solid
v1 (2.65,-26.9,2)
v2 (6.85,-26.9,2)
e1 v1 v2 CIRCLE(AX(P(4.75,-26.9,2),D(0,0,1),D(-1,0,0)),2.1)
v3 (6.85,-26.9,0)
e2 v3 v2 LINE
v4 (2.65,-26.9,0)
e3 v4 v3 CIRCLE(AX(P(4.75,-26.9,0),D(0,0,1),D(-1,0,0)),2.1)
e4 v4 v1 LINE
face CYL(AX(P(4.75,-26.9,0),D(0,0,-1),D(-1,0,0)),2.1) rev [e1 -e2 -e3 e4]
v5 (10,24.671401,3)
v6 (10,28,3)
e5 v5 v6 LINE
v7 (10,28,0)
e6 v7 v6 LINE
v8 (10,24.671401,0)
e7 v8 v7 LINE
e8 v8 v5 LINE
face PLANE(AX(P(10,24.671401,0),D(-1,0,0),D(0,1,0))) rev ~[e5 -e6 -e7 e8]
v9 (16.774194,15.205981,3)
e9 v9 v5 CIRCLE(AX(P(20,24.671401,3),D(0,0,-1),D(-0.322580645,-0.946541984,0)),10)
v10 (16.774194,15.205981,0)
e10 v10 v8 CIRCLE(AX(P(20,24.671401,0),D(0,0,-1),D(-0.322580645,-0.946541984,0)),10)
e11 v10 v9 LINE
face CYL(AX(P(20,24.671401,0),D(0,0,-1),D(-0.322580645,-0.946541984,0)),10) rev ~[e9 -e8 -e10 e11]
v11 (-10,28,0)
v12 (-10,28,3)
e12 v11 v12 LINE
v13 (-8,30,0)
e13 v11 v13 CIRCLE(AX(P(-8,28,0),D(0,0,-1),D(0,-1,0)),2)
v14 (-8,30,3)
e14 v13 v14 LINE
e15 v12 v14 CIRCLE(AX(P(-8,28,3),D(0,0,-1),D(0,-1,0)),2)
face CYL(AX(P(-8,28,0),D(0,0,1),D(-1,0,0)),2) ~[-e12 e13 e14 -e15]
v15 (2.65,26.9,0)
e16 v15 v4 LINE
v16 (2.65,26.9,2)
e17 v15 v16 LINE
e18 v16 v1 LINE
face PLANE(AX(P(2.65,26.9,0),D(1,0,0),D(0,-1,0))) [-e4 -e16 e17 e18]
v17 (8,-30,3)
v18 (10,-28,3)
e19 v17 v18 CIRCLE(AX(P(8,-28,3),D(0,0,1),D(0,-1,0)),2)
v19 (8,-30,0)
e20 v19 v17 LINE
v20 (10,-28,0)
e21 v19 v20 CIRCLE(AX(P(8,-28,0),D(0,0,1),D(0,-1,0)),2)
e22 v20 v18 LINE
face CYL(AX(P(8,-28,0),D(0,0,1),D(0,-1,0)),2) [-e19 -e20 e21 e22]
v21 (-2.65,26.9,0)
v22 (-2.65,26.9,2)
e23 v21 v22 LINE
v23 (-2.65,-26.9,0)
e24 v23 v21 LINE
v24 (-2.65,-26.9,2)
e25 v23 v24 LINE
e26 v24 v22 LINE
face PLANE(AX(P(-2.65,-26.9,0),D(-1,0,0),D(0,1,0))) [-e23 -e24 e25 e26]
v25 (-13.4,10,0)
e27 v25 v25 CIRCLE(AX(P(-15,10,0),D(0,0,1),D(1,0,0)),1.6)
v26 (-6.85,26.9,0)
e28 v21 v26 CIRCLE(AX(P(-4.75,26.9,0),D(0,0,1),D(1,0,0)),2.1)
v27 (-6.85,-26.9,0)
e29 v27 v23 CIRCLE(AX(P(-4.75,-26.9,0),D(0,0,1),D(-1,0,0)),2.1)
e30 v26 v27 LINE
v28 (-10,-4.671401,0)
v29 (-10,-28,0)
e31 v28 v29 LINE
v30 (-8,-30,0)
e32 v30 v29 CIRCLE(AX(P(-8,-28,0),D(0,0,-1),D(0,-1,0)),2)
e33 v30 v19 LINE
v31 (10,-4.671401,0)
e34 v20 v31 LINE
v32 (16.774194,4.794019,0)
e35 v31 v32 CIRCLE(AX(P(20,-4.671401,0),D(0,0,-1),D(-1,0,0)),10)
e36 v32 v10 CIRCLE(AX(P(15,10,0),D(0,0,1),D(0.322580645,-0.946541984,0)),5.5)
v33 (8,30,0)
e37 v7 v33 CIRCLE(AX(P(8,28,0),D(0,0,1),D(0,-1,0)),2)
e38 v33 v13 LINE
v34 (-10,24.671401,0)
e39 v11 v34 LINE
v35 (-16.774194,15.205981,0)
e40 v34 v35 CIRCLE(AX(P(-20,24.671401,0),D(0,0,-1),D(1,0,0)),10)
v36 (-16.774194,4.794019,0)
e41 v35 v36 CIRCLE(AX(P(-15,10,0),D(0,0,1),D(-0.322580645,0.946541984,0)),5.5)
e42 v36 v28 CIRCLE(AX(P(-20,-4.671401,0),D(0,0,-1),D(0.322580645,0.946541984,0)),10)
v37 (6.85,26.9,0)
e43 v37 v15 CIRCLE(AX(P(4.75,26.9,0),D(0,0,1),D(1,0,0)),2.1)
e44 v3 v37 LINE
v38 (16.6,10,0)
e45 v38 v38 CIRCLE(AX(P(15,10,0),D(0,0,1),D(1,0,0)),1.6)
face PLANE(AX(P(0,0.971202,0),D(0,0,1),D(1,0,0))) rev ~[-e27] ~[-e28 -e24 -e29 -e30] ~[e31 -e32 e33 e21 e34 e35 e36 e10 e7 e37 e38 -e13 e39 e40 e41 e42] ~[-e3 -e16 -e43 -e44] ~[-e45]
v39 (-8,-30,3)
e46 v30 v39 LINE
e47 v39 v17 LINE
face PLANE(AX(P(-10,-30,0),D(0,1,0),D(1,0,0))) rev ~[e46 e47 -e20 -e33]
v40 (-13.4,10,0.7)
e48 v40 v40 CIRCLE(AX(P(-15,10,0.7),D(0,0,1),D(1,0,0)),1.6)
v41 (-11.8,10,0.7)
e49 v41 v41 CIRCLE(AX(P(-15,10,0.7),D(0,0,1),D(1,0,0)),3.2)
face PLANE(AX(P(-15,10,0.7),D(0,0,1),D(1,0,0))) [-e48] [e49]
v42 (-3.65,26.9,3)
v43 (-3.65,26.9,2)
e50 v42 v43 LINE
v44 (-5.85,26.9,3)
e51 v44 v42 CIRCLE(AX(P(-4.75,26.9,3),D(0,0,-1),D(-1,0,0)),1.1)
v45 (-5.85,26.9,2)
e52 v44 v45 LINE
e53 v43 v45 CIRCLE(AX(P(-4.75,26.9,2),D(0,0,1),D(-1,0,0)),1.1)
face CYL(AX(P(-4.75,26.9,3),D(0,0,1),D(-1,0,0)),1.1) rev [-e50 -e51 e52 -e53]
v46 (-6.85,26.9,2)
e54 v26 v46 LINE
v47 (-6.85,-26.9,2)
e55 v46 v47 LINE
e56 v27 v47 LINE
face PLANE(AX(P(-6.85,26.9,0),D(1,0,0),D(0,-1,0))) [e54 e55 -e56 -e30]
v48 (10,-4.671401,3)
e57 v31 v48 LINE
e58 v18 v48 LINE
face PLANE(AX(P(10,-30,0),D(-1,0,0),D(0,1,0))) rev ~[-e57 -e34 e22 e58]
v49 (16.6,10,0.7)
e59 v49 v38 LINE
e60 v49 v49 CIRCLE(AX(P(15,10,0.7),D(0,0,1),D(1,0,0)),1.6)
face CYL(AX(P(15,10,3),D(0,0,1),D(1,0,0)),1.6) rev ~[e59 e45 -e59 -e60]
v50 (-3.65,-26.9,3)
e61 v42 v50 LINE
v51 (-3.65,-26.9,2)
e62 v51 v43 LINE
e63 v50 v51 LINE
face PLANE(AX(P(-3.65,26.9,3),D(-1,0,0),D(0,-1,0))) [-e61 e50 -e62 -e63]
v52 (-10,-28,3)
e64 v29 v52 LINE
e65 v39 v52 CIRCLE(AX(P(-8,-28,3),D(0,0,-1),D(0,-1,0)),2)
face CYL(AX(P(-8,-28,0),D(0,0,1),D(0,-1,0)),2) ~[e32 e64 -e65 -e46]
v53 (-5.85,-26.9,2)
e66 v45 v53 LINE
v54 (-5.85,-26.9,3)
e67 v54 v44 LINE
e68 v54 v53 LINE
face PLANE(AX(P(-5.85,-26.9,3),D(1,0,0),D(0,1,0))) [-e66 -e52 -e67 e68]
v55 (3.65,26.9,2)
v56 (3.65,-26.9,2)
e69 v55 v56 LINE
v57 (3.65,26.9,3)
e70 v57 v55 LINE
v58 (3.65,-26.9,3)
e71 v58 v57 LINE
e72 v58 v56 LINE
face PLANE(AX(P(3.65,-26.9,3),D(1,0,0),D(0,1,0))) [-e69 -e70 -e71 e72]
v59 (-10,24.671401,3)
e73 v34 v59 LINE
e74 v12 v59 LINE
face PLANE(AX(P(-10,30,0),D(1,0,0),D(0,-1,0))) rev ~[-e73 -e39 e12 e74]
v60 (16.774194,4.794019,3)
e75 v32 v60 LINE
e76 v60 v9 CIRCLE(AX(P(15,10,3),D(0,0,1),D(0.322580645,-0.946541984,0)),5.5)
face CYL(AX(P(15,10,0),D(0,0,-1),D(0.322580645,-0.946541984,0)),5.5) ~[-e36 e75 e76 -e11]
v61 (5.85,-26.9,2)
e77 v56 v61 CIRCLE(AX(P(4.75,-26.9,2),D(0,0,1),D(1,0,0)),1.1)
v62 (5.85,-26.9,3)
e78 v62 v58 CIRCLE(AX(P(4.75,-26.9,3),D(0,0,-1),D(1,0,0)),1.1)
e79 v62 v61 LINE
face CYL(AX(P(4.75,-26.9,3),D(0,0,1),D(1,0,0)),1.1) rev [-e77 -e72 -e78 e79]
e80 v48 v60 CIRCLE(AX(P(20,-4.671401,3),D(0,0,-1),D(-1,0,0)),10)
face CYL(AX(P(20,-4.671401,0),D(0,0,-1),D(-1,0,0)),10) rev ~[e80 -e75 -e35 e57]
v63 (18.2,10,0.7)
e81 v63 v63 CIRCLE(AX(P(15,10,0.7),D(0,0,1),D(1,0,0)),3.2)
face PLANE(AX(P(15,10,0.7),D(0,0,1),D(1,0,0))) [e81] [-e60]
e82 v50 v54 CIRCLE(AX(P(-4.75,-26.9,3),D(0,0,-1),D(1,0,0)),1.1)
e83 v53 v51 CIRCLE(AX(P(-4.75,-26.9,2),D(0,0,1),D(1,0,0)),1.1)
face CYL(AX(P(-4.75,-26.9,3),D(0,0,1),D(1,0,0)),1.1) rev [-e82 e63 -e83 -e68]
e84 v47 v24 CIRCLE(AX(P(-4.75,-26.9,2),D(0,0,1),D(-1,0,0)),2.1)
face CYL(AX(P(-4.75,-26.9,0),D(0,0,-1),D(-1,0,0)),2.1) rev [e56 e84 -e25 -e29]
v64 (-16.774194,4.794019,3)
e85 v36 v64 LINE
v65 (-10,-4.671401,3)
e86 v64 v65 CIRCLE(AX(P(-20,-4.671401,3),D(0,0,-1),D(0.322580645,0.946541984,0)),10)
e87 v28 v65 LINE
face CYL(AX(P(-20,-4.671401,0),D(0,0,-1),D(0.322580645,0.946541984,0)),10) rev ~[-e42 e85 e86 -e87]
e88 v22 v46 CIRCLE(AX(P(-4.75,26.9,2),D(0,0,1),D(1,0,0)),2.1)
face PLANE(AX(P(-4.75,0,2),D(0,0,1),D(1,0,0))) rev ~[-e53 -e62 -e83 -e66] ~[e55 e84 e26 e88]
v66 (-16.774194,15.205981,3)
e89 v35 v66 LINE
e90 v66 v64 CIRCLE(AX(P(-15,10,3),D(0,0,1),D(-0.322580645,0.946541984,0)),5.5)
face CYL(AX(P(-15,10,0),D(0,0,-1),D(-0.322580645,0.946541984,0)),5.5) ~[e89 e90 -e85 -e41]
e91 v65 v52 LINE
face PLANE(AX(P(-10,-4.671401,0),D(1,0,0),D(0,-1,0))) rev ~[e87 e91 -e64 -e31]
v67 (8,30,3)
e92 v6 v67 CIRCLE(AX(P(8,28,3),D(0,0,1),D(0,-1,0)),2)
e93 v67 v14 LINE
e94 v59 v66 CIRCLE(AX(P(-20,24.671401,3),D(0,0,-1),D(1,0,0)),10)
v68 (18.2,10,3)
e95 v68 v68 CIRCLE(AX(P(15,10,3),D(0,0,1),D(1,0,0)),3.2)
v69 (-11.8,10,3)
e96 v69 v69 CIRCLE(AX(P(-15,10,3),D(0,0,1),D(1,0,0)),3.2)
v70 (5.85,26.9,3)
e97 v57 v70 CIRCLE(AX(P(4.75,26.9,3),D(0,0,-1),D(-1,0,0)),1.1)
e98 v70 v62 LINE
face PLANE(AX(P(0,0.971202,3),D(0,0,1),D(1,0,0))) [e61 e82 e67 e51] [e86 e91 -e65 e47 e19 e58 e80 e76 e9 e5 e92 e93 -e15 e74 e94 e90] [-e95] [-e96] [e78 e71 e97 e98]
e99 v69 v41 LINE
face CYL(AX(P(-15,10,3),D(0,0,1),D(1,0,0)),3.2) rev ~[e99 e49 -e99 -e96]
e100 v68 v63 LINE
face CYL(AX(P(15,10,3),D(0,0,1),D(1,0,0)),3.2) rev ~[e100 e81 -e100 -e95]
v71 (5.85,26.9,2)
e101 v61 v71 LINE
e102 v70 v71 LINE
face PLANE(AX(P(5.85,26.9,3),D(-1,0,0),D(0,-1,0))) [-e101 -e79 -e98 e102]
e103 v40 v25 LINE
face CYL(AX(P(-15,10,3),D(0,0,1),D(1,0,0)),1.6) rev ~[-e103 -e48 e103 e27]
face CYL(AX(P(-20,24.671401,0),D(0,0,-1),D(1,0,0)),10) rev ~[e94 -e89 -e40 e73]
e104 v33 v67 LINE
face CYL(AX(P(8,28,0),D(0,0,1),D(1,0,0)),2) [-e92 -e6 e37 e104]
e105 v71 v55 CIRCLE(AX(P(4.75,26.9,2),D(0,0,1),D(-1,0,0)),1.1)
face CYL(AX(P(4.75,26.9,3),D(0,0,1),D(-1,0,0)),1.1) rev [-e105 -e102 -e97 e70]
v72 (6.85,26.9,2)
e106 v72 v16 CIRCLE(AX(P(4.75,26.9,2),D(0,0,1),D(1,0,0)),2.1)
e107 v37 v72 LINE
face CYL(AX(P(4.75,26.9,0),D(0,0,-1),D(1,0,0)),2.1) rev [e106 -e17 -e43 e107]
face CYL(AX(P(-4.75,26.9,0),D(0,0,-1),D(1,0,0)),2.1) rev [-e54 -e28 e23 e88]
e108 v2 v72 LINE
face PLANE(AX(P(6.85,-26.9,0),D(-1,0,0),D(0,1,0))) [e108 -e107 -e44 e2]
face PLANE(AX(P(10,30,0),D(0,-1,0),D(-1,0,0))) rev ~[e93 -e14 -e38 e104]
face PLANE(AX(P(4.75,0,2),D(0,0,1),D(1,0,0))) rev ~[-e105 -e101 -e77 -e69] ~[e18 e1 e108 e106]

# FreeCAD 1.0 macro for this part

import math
import FreeCAD as App
import Part
import Sketcher

V = App.Vector


def edges_at(feature, points):
    """Names of the edges that pass closest to the given points."""
    edges = feature.Shape.Edges
    near = lambda p: min(range(len(edges)), key=lambda i: edges[i].distToShape(Part.Vertex(*p))[0])
    return sorted({f"Edge{near(p) + 1}" for p in points})

doc = App.newDocument("Part")
params = doc.addObject("Spreadsheet::Sheet", "Params")
for row, (alias, value) in enumerate([
    ("sketch1_radius", "10 mm"),
    ("sketch1_radius2", "5.5 mm"),
    ("sketch1_width", "20 mm"),
    ("pad1_length", "3 mm"),
    ("sketch2_diameter", "3.2 mm"),
    ("sketch2_radius", "1.1 mm"),
    ("sketch2_height", "53.8 mm"),
    ("sketch3_diameter", "6.4 mm"),
    ("pocket2_length", "2.3 mm"),
    ("sketch4_radius", "2.1 mm"),
    ("sketch4_height", "53.8 mm"),
    ("pocket3_length", "2 mm"),
    ("fillet_radius", "2 mm"),
], start=1):
    params.set(f"A{row}", alias)
    params.set(f"B{row}", "=" + value)
    params.setAlias(f"B{row}", alias)

body = doc.addObject("PartDesign::Body", "Body")

# Sketch on XY plane
sketch1 = doc.addObject("Sketcher::SketchObject", "Sketch")
body.addObject(sketch1)
sketch1.AttachmentSupport = (doc.XY_Plane, [""])
sketch1.MapMode = "FlatFace"
sketch1.addGeometry([
    Part.LineSegment(V(-10, -30, 0), V(10, -30, 0)),  # 0
    Part.LineSegment(V(10, -30, 0), V(10, -5, 0)),  # 1
    Part.ArcOfCircle(Part.Circle(V(20, -5, 0), V(0, 0, 1), 10), math.radians(109), math.radians(180)),  # 2
    Part.ArcOfCircle(Part.Circle(V(15, 10, 0), V(0, 0, 1), 6), math.radians(-71), math.radians(71)),  # 3
    Part.ArcOfCircle(Part.Circle(V(20, 25, 0), V(0, 0, 1), 10), math.radians(180), math.radians(251)),  # 4
    Part.LineSegment(V(10, 25, 0), V(10, 30, 0)),  # 5
    Part.LineSegment(V(10, 30, 0), V(-10, 30, 0)),  # 6
    Part.LineSegment(V(-10, 30, 0), V(-10, 25, 0)),  # 7
    Part.ArcOfCircle(Part.Circle(V(-20, 25, 0), V(0, 0, 1), 10), math.radians(-71), math.radians(0)),  # 8
    Part.ArcOfCircle(Part.Circle(V(-15, 10, 0), V(0, 0, 1), 6), math.radians(109), math.radians(251)),  # 9
    Part.ArcOfCircle(Part.Circle(V(-20, -5, 0), V(0, 0, 1), 10), math.radians(0), math.radians(71)),  # 10
    Part.LineSegment(V(-10, -5, 0), V(-10, -30, 0)),  # 11
], False)
sketch1.addConstraint([
    Sketcher.Constraint("Coincident", 0, 2, 1, 1),
    Sketcher.Constraint("Tangent", 1, 2, 2, 2),
    Sketcher.Constraint("Tangent", 2, 1, 3, 1),
    Sketcher.Constraint("Tangent", 3, 2, 4, 2),
    Sketcher.Constraint("Tangent", 4, 1, 5, 1),
    Sketcher.Constraint("Coincident", 5, 2, 6, 1),
    Sketcher.Constraint("Coincident", 6, 2, 7, 1),
    Sketcher.Constraint("Tangent", 7, 2, 8, 2),
    Sketcher.Constraint("Tangent", 8, 1, 9, 1),
    Sketcher.Constraint("Tangent", 9, 2, 10, 2),
    Sketcher.Constraint("Tangent", 10, 1, 11, 1),
    Sketcher.Constraint("Coincident", 11, 2, 0, 1),
    Sketcher.Constraint("Horizontal", 0),
    Sketcher.Constraint("Vertical", 1),
    Sketcher.Constraint("Vertical", 5),
    Sketcher.Constraint("Horizontal", 6),
    Sketcher.Constraint("Vertical", 7),
    Sketcher.Constraint("Vertical", 11),
    Sketcher.Constraint("Equal", 2, 4),
    Sketcher.Constraint("Equal", 4, 8),
    Sketcher.Constraint("Equal", 3, 9),
    Sketcher.Constraint("Equal", 8, 10),
    Sketcher.Constraint("Symmetric", 0, 2, 6, 2, -1, 1),
    Sketcher.Constraint("Symmetric", 4, 3, 8, 3, -2),
    Sketcher.Constraint("Symmetric", 2, 3, 10, 3, -2),
    Sketcher.Constraint("Radius", 2, 10.0),
    Sketcher.Constraint("Radius", 3, 5.5),
    Sketcher.Constraint("DistanceX", 0, 1, 0, 2, 20.0),
    Sketcher.Constraint("DistanceX", -1, 1, 3, 3, 15.0),
    Sketcher.Constraint("DistanceY", -1, 1, 3, 3, 10.0),
    Sketcher.Constraint("DistanceY", 0, 2, -1, 1, 30.0),
])
sketch1.setExpression("Constraints[25]", "Params.sketch1_radius")
sketch1.setExpression("Constraints[26]", "Params.sketch1_radius2")
sketch1.setExpression("Constraints[27]", "Params.sketch1_width")
pad1 = doc.addObject("PartDesign::Pad", "Pad")
body.addObject(pad1)
pad1.Profile = sketch1
pad1.setExpression("Length", "Params.pad1_length")

# Sketch on XY plane
sketch2 = doc.addObject("Sketcher::SketchObject", "Sketch001")
body.addObject(sketch2)
sketch2.AttachmentSupport = (doc.XY_Plane, [""])
sketch2.MapMode = "FlatFace"
sketch2.AttachmentOffset = App.Placement(V(0, 0, 3), App.Rotation())
sketch2.addGeometry([
    Part.Circle(V(-15, 10, 0), V(0, 0, 1), 1.6),  # 0
    Part.Circle(V(15, 10, 0), V(0, 0, 1), 1.6),  # 1
    Part.LineSegment(V(-3.6, -26.9, 0), V(-3.6, 26.9, 0)),  # 2
    Part.ArcOfCircle(Part.Circle(V(-4.8, 26.9, 0), V(0, 0, 1), 1.1), math.radians(0), math.radians(180)),  # 3
    Part.LineSegment(V(-5.8, 26.9, 0), V(-5.8, -26.9, 0)),  # 4
    Part.ArcOfCircle(Part.Circle(V(-4.8, -26.9, 0), V(0, 0, 1), 1.1), math.radians(180), math.radians(360)),  # 5
    Part.LineSegment(V(5.8, -26.9, 0), V(5.8, 26.9, 0)),  # 6
    Part.ArcOfCircle(Part.Circle(V(4.8, 26.9, 0), V(0, 0, 1), 1.1), math.radians(0), math.radians(180)),  # 7
    Part.LineSegment(V(3.6, 26.9, 0), V(3.6, -26.9, 0)),  # 8
    Part.ArcOfCircle(Part.Circle(V(4.8, -26.9, 0), V(0, 0, 1), 1.1), math.radians(180), math.radians(360)),  # 9
], False)
sketch2.addConstraint([
    Sketcher.Constraint("Tangent", 2, 2, 3, 1),
    Sketcher.Constraint("Tangent", 3, 2, 4, 1),
    Sketcher.Constraint("Tangent", 4, 2, 5, 1),
    Sketcher.Constraint("Tangent", 5, 2, 2, 1),
    Sketcher.Constraint("Tangent", 6, 2, 7, 1),
    Sketcher.Constraint("Tangent", 7, 2, 8, 1),
    Sketcher.Constraint("Tangent", 8, 2, 9, 1),
    Sketcher.Constraint("Tangent", 9, 2, 6, 1),
    Sketcher.Constraint("Vertical", 2),
    Sketcher.Constraint("Vertical", 4),
    Sketcher.Constraint("Vertical", 6),
    Sketcher.Constraint("Vertical", 8),
    Sketcher.Constraint("Equal", 0, 1),
    Sketcher.Constraint("Equal", 5, 7),
    Sketcher.Constraint("Symmetric", 5, 3, 7, 3, -1, 1),
    Sketcher.Constraint("Symmetric", 0, 3, 1, 3, -2),
    Sketcher.Constraint("Horizontal", 3, 3, 7, 3),
    Sketcher.Constraint("Horizontal", 5, 3, 9, 3),
    Sketcher.Constraint("Diameter", 0, 3.2),
    Sketcher.Constraint("Radius", 3, 1.1),
    Sketcher.Constraint("DistanceY", 2, 1, 2, 2, 53.8),
    Sketcher.Constraint("DistanceX", 0, 3, -1, 1, 15.0),
    Sketcher.Constraint("DistanceY", -1, 1, 0, 3, 10.0),
    Sketcher.Constraint("DistanceX", 3, 3, 7, 3, 9.5),
])
sketch2.setExpression("Constraints[18]", "Params.sketch2_diameter")
sketch2.setExpression("Constraints[19]", "Params.sketch2_radius")
sketch2.setExpression("Constraints[20]", "Params.sketch2_height")
pocket1 = doc.addObject("PartDesign::Pocket", "Pocket")
body.addObject(pocket1)
pocket1.Profile = sketch2
pocket1.Type = "ThroughAll"

# Sketch on XY plane
sketch3 = doc.addObject("Sketcher::SketchObject", "Sketch002")
body.addObject(sketch3)
sketch3.AttachmentSupport = (doc.XY_Plane, [""])
sketch3.MapMode = "FlatFace"
sketch3.AttachmentOffset = App.Placement(V(0, 0, 3), App.Rotation())
sketch3.addGeometry([
    Part.Circle(V(-15, 10, 0), V(0, 0, 1), 3.2),
    Part.Circle(V(15, 10, 0), V(0, 0, 1), 3.2),
], False)
sketch3.addConstraint([
    Sketcher.Constraint("Equal", 0, 1),
    Sketcher.Constraint("Symmetric", 0, 3, 1, 3, -2),
    Sketcher.Constraint("Diameter", 0, 6.4),
    Sketcher.Constraint("DistanceX", 0, 3, -1, 1, 15.0),
    Sketcher.Constraint("DistanceY", -1, 1, 0, 3, 10.0),
])
sketch3.setExpression("Constraints[2]", "Params.sketch3_diameter")
pocket2 = doc.addObject("PartDesign::Pocket", "Pocket001")
body.addObject(pocket2)
pocket2.Profile = sketch3
pocket2.setExpression("Length", "Params.pocket2_length")

# Sketch on XY plane
sketch4 = doc.addObject("Sketcher::SketchObject", "Sketch003")
body.addObject(sketch4)
sketch4.AttachmentSupport = (doc.XY_Plane, [""])
sketch4.MapMode = "FlatFace"
sketch4.addGeometry([
    Part.LineSegment(V(2.6, -26.9, 0), V(2.6, 26.9, 0)),  # 0
    Part.ArcOfCircle(Part.Circle(V(4.8, 26.9, 0), V(0, 0, 1), 2.1), math.radians(0), math.radians(180)),  # 1
    Part.LineSegment(V(6.8, 26.9, 0), V(6.8, -26.9, 0)),  # 2
    Part.ArcOfCircle(Part.Circle(V(4.8, -26.9, 0), V(0, 0, 1), 2.1), math.radians(180), math.radians(360)),  # 3
    Part.LineSegment(V(-2.6, 26.9, 0), V(-2.6, -26.9, 0)),  # 4
    Part.ArcOfCircle(Part.Circle(V(-4.8, -26.9, 0), V(0, 0, 1), 2.1), math.radians(180), math.radians(360)),  # 5
    Part.LineSegment(V(-6.8, -26.9, 0), V(-6.8, 26.9, 0)),  # 6
    Part.ArcOfCircle(Part.Circle(V(-4.8, 26.9, 0), V(0, 0, 1), 2.1), math.radians(0), math.radians(180)),  # 7
], False)
sketch4.addConstraint([
    Sketcher.Constraint("Tangent", 0, 2, 1, 2),
    Sketcher.Constraint("Tangent", 1, 1, 2, 1),
    Sketcher.Constraint("Tangent", 2, 2, 3, 2),
    Sketcher.Constraint("Tangent", 3, 1, 0, 1),
    Sketcher.Constraint("Tangent", 4, 2, 5, 2),
    Sketcher.Constraint("Tangent", 5, 1, 6, 1),
    Sketcher.Constraint("Tangent", 6, 2, 7, 2),
    Sketcher.Constraint("Tangent", 7, 1, 4, 1),
    Sketcher.Constraint("Vertical", 0),
    Sketcher.Constraint("Vertical", 2),
    Sketcher.Constraint("Vertical", 4),
    Sketcher.Constraint("Vertical", 6),
    Sketcher.Constraint("Equal", 3, 5),
    Sketcher.Constraint("Symmetric", 1, 3, 5, 3, -1, 1),
    Sketcher.Constraint("Horizontal", 3, 3, 5, 3),
    Sketcher.Constraint("Horizontal", 1, 3, 7, 3),
    Sketcher.Constraint("Radius", 1, 2.1),
    Sketcher.Constraint("DistanceY", 0, 1, 0, 2, 53.8),
    Sketcher.Constraint("DistanceX", 5, 3, 3, 3, 9.5),
])
sketch4.setExpression("Constraints[16]", "Params.sketch4_radius")
sketch4.setExpression("Constraints[17]", "Params.sketch4_height")
pocket3 = doc.addObject("PartDesign::Pocket", "Pocket002")
body.addObject(pocket3)
pocket3.Profile = sketch4
pocket3.setExpression("Length", "Params.pocket3_length")
pocket3.Reversed = True
doc.recompute()

fillet = doc.addObject("PartDesign::Fillet", "Fillet")
body.addObject(fillet)
fillet.Base = (pocket3, edges_at(pocket3, [
    (10, -30, 1.5),
    (-10, -30, 1.5),
    (-10, 30, 1.5),
    (10, 30, 1.5),
]))
fillet.setExpression("Radius", "Params.fillet_radius")

doc.recompute()
